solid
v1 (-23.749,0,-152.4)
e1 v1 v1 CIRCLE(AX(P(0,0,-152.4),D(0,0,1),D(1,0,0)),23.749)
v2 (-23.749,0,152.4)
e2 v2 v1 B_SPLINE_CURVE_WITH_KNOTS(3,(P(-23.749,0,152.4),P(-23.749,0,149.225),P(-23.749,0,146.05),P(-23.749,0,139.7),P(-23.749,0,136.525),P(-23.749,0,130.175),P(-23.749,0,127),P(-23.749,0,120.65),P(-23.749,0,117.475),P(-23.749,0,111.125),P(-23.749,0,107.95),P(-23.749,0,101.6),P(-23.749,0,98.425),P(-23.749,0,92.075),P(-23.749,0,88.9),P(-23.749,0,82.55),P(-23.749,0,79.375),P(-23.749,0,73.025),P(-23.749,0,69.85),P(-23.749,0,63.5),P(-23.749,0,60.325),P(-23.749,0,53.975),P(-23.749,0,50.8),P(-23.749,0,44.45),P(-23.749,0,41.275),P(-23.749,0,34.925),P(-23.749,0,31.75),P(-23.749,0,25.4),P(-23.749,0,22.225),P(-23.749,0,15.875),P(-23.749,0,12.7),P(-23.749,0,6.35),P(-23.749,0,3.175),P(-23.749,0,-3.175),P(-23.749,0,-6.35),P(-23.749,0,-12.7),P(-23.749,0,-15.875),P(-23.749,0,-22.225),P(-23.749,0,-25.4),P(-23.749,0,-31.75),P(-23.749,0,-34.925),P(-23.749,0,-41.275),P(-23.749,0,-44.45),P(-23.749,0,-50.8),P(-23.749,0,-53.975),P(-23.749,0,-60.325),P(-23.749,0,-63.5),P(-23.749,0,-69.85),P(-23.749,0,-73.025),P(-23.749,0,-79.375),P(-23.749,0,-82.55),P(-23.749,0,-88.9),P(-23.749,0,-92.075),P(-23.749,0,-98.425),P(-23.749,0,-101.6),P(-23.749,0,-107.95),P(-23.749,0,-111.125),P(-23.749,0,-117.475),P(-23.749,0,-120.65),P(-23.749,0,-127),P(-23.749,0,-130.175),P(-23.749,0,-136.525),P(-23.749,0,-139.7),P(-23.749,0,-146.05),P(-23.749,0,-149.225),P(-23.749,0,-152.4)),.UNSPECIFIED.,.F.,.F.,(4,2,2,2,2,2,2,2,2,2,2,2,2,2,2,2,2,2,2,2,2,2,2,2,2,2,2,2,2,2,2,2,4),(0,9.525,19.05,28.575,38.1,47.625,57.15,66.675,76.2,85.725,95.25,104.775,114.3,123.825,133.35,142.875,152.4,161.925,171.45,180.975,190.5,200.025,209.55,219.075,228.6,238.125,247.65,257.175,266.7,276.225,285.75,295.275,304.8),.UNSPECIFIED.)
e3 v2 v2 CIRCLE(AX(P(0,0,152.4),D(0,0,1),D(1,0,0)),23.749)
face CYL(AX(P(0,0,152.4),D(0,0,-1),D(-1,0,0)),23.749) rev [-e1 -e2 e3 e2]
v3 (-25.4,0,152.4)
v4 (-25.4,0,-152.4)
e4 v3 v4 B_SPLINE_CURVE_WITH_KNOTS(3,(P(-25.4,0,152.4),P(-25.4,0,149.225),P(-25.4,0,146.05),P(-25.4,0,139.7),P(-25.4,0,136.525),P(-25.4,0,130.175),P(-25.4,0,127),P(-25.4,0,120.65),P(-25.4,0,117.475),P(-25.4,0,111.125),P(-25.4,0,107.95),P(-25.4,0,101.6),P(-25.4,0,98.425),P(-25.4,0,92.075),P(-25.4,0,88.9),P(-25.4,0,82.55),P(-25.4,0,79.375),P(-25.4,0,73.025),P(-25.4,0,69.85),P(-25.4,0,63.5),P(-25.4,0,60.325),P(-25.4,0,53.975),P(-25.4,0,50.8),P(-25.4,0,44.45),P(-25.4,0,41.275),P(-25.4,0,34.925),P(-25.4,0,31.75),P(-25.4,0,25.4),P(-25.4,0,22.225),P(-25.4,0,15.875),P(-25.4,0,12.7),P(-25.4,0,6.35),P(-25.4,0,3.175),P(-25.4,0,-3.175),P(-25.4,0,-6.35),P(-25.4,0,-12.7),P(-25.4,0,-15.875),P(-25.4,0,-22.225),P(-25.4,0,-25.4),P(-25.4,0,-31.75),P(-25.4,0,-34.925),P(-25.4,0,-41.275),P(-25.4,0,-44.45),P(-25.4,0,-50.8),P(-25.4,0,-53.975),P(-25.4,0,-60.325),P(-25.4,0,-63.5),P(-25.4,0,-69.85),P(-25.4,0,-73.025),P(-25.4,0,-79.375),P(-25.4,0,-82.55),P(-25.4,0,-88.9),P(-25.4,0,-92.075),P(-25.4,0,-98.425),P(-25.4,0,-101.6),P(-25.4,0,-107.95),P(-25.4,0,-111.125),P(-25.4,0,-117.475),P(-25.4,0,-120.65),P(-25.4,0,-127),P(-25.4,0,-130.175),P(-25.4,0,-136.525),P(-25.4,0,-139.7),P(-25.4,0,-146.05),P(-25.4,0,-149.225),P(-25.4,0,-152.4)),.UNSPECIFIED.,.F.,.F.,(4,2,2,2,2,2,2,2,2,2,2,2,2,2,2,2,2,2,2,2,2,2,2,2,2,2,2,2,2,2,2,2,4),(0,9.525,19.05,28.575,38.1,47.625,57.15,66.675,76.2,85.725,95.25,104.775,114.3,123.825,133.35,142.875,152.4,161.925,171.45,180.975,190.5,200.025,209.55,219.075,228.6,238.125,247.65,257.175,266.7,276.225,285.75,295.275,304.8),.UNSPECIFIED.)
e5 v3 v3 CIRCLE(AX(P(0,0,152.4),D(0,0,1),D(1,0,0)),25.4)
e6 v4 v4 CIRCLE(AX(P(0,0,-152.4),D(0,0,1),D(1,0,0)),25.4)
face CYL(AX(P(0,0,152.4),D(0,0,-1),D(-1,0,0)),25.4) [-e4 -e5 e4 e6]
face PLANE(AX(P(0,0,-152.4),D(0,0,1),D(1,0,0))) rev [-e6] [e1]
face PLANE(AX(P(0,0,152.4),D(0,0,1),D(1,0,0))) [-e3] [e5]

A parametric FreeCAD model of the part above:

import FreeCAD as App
import Part
import Sketcher

V = App.Vector
Q = App.Units.Quantity

doc = App.newDocument("Part")
params = doc.addObject("Spreadsheet::Sheet", "Params")
for row, (alias, value) in enumerate([
    ("sketch1_diameter", "2 in"),
    ("sketch1_diameter2", "1.87 in"),
    ("pad1_length", "12 in"),
], start=1):
    params.set(f"A{row}", alias)
    params.set(f"B{row}", "=" + value)
    params.setAlias(f"B{row}", alias)

body = doc.addObject("PartDesign::Body", "Body")

# Sketch on XY plane
sketch1 = body.newObject("Sketcher::SketchObject", "Sketch")
sketch1.AttachmentSupport = (doc.getObject("XY_Plane"), [""])
sketch1.MapMode = "FlatFace"
sketch1.addGeometry(Part.Circle(V(0, 0, 0), V(0, 0, 1), 25), False)
sketch1.addGeometry(Part.Circle(V(0, 0, 0), V(0, 0, 1), 24), False)
sketch1.addConstraint(Sketcher.Constraint("Coincident", 0, 3, -1, 1))
sketch1.addConstraint(Sketcher.Constraint("Coincident", 1, 3, -1, 1))
sketch1.addConstraint(Sketcher.Constraint("Diameter", 0, Q("2 in")))
sketch1.addConstraint(Sketcher.Constraint("Diameter", 1, Q("1.87 in")))
sketch1.setExpression("Constraints[2]", "Params.sketch1_diameter")
sketch1.setExpression("Constraints[3]", "Params.sketch1_diameter2")
pad1 = body.newObject("PartDesign::Pad", "Pad")
pad1.Profile = sketch1
pad1.setExpression("Length", "Params.pad1_length")
pad1.Midplane = True

doc.recompute()
